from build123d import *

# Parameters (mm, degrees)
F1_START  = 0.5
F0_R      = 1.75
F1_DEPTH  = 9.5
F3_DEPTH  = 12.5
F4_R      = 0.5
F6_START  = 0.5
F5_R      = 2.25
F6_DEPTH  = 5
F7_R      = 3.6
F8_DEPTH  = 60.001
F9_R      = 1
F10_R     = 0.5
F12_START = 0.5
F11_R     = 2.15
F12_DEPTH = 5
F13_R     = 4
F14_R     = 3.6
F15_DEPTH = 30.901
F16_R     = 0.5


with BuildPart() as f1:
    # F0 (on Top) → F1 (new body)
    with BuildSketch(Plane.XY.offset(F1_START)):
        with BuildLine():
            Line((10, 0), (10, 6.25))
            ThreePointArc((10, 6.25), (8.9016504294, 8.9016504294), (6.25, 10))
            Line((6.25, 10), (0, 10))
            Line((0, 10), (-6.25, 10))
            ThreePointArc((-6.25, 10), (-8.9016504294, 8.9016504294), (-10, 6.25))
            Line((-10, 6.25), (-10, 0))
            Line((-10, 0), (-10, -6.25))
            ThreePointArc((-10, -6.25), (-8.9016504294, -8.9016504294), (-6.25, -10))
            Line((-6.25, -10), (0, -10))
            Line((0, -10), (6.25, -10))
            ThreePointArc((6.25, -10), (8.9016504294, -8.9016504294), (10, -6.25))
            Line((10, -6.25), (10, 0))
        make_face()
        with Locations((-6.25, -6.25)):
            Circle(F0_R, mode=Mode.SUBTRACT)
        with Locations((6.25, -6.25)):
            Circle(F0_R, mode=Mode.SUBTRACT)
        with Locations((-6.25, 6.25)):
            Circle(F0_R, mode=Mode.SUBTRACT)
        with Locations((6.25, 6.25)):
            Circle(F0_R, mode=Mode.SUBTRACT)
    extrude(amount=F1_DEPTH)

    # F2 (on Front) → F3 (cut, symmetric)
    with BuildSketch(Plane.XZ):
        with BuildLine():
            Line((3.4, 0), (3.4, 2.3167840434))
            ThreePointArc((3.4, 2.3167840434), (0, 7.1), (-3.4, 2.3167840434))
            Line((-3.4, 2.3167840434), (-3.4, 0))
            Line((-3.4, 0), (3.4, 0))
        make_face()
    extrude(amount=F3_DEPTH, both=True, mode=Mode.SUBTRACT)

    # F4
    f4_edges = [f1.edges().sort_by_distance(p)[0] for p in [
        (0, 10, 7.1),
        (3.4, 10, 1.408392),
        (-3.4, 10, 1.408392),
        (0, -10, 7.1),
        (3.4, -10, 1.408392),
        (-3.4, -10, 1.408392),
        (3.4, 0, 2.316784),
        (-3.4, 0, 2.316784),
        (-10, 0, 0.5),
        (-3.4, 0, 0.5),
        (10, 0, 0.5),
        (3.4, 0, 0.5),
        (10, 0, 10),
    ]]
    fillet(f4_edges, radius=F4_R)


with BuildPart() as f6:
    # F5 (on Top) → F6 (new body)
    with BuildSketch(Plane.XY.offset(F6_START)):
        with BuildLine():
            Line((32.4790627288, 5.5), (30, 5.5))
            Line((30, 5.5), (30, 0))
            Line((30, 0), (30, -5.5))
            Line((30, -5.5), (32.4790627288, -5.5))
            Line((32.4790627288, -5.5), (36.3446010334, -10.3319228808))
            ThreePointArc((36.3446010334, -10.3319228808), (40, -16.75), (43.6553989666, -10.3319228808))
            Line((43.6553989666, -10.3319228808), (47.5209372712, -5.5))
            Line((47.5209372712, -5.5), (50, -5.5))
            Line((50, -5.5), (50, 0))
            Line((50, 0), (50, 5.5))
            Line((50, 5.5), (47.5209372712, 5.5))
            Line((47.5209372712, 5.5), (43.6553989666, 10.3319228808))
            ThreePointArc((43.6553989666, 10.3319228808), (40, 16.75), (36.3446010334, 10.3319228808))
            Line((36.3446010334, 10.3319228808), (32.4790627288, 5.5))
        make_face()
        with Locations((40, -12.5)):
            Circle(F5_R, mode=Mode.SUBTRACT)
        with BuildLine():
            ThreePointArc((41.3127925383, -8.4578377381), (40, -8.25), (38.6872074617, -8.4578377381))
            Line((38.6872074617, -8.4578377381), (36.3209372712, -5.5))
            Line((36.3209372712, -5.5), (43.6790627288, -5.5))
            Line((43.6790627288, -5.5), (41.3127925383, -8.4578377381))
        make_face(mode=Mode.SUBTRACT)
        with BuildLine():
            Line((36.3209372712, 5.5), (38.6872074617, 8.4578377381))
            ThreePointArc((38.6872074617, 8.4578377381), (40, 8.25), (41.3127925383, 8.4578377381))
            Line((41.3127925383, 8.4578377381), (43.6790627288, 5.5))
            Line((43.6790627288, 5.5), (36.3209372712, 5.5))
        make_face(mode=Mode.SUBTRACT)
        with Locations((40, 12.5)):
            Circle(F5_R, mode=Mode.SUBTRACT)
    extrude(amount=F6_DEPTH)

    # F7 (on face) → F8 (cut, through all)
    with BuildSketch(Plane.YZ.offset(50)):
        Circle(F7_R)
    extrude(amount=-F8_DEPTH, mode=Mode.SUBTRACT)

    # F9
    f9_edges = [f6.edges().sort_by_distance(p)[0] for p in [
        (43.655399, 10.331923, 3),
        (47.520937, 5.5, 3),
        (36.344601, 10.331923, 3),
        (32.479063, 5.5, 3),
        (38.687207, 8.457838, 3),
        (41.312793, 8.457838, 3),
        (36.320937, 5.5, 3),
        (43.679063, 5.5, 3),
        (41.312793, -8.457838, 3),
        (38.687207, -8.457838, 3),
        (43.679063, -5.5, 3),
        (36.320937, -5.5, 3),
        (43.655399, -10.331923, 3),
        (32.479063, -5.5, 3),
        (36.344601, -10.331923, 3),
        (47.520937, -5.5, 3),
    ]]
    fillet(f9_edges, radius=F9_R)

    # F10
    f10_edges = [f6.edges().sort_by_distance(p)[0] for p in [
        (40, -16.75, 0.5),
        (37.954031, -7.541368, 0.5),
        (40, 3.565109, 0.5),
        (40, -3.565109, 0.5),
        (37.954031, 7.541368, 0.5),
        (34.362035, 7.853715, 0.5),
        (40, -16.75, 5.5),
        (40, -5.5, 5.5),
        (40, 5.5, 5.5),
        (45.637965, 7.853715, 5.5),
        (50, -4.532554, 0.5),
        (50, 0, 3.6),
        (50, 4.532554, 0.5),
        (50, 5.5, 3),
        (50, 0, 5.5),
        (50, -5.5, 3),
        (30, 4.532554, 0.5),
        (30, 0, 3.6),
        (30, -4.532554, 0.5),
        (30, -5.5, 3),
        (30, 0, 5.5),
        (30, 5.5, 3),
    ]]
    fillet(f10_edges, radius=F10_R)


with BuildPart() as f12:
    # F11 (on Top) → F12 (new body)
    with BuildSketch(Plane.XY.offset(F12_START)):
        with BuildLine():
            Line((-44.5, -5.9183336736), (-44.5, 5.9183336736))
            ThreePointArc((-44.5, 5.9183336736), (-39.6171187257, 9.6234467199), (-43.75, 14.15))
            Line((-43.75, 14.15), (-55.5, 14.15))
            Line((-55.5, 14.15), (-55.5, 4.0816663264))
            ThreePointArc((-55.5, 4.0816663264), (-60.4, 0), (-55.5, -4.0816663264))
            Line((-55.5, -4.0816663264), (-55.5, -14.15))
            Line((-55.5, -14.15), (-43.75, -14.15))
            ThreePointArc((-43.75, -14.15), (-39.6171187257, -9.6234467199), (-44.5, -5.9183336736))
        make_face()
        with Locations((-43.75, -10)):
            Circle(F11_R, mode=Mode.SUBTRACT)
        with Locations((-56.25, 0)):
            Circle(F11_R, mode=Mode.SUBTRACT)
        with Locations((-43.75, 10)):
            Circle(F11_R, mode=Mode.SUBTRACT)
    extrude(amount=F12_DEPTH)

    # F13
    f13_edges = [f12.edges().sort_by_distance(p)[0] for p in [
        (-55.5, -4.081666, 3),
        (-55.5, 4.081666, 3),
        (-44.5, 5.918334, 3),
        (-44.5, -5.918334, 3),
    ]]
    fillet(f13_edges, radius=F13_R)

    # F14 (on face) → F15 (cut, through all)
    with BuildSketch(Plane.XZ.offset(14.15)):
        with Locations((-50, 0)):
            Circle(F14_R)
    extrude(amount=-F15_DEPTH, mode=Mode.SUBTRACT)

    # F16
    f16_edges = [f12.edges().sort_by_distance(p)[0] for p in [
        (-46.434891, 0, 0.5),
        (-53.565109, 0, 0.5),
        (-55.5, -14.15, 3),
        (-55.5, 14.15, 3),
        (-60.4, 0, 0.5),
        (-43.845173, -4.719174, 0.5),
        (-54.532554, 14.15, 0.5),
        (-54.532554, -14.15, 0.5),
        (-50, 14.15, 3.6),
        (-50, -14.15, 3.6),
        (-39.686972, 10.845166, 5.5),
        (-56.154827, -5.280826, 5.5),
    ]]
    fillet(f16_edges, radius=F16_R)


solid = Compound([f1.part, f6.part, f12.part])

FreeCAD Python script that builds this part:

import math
import FreeCAD as App
import Part
import Sketcher

V = App.Vector


def edges_at(feature, points):
    """Names of the edges that pass closest to the given points."""
    edges = feature.Shape.Edges
    near = lambda p: min(range(len(edges)), key=lambda i: edges[i].distToShape(Part.Vertex(*p))[0])
    return sorted({f"Edge{near(p) + 1}" for p in points})

doc = App.newDocument("Part")
body = doc.addObject("PartDesign::Body", "Body")

sketch1 = doc.addObject("Sketcher::SketchObject", "Sketch")
body.addObject(sketch1)
sketch1.AttachmentSupport = (doc.XY_Plane, [""])
sketch1.MapMode = "FlatFace"
sketch1.AttachmentOffset = App.Placement(V(0, 0, 0.5), App.Rotation())
sketch1.addGeometry(Part.ArcOfCircle(Part.Circle(V(6.25, 6.25, 0), V(0, 0, 1), 3.75), math.radians(0), math.radians(90)), False)
sketch1.addGeometry(Part.LineSegment(V(6.25, 10, 0), V(-6.25, 10, 0)), False)
sketch1.addGeometry(Part.ArcOfCircle(Part.Circle(V(-6.25, 6.25, 0), V(0, 0, 1), 3.75), math.radians(90), math.radians(180)), False)
sketch1.addGeometry(Part.LineSegment(V(-10, 6.25, 0), V(-10, -6.25, 0)), False)
sketch1.addGeometry(Part.ArcOfCircle(Part.Circle(V(-6.25, -6.25, 0), V(0, 0, 1), 3.75), math.radians(180), math.radians(270)), False)
sketch1.addGeometry(Part.LineSegment(V(-6.25, -10, 0), V(6.25, -10, 0)), False)
sketch1.addGeometry(Part.ArcOfCircle(Part.Circle(V(6.25, -6.25, 0), V(0, 0, 1), 3.75), math.radians(-90), math.radians(0)), False)
sketch1.addGeometry(Part.LineSegment(V(10, -6.25, 0), V(10, 6.25, 0)), False)
sketch1.addGeometry(Part.Circle(V(-6.25, -6.25, 0), V(0, 0, 1), 1.75), False)
sketch1.addGeometry(Part.Circle(V(6.25, -6.25, 0), V(0, 0, 1), 1.75), False)
sketch1.addGeometry(Part.Circle(V(-6.25, 6.25, 0), V(0, 0, 1), 1.75), False)
sketch1.addGeometry(Part.Circle(V(6.25, 6.25, 0), V(0, 0, 1), 1.75), False)
sketch1.addConstraint(Sketcher.Constraint("Tangent", 0, 2, 1, 1))
sketch1.addConstraint(Sketcher.Constraint("Tangent", 1, 2, 2, 1))
sketch1.addConstraint(Sketcher.Constraint("Tangent", 2, 2, 3, 1))
sketch1.addConstraint(Sketcher.Constraint("Tangent", 3, 2, 4, 1))
sketch1.addConstraint(Sketcher.Constraint("Tangent", 4, 2, 5, 1))
sketch1.addConstraint(Sketcher.Constraint("Tangent", 5, 2, 6, 1))
sketch1.addConstraint(Sketcher.Constraint("Tangent", 6, 2, 7, 1))
sketch1.addConstraint(Sketcher.Constraint("Tangent", 7, 2, 0, 1))
sketch1.addConstraint(Sketcher.Constraint("Horizontal", 1))
sketch1.addConstraint(Sketcher.Constraint("Vertical", 3))
sketch1.addConstraint(Sketcher.Constraint("Horizontal", 5))
sketch1.addConstraint(Sketcher.Constraint("Vertical", 7))
sketch1.addConstraint(Sketcher.Constraint("Coincident", 8, 3, 4, 3))
sketch1.addConstraint(Sketcher.Constraint("Coincident", 9, 3, 6, 3))
sketch1.addConstraint(Sketcher.Constraint("Coincident", 10, 3, 2, 3))
sketch1.addConstraint(Sketcher.Constraint("Coincident", 11, 3, 0, 3))
sketch1.addConstraint(Sketcher.Constraint("Equal", 0, 2))
sketch1.addConstraint(Sketcher.Constraint("Equal", 2, 4))
sketch1.addConstraint(Sketcher.Constraint("Equal", 4, 6))
sketch1.addConstraint(Sketcher.Constraint("Equal", 8, 9))
sketch1.addConstraint(Sketcher.Constraint("Equal", 9, 10))
sketch1.addConstraint(Sketcher.Constraint("Equal", 10, 11))
sketch1.addConstraint(Sketcher.Constraint("Symmetric", 0, 3, 4, 3, -1, 1))
sketch1.addConstraint(Sketcher.Constraint("Equal", 5, 3))
sketch1.addConstraint(Sketcher.Constraint("Diameter", 8, 3.5))
sketch1.addConstraint(Sketcher.Constraint("Radius", 0, 3.75))
sketch1.addConstraint(Sketcher.Constraint("DistanceX", 1, 2, 1, 1, 12.5))
pad1 = doc.addObject("PartDesign::Pad", "Pad")
body.addObject(pad1)
pad1.Profile = sketch1
pad1.Length = 9.5

sketch2 = doc.addObject("Sketcher::SketchObject", "Sketch001")
body.addObject(sketch2)
sketch2.AttachmentSupport = (doc.XZ_Plane, [""])
sketch2.MapMode = "FlatFace"
sketch2.addGeometry(Part.LineSegment(V(3.4, 0, 0), V(3.4, 2.316784, 0)), False)
sketch2.addGeometry(Part.ArcOfCircle(Part.Circle(V(0, 3.5, 0), V(0, 0, 1), 3.6), math.radians(-19.188136), math.radians(199.188136)), False)
sketch2.addGeometry(Part.LineSegment(V(-3.4, 2.316784, 0), V(-3.4, 0, 0)), False)
sketch2.addGeometry(Part.LineSegment(V(-3.4, 0, 0), V(3.4, 0, 0)), False)
sketch2.addConstraint(Sketcher.Constraint("Coincident", 0, 2, 1, 1))
sketch2.addConstraint(Sketcher.Constraint("Coincident", 1, 2, 2, 1))
sketch2.addConstraint(Sketcher.Constraint("Coincident", 2, 2, 3, 1))
sketch2.addConstraint(Sketcher.Constraint("Coincident", 3, 2, 0, 1))
sketch2.addConstraint(Sketcher.Constraint("Vertical", 0))
sketch2.addConstraint(Sketcher.Constraint("Vertical", 2))
sketch2.addConstraint(Sketcher.Constraint("Horizontal", 3))
sketch2.addConstraint(Sketcher.Constraint("Symmetric", 2, 2, 3, 2, -1, 1))
sketch2.addConstraint(Sketcher.Constraint("PointOnObject", 1, 3, -2))
sketch2.addConstraint(Sketcher.Constraint("Radius", 1, 3.6))
sketch2.addConstraint(Sketcher.Constraint("DistanceX", 3, 1, 3, 2, 6.8))
sketch2.addConstraint(Sketcher.Constraint("DistanceY", -1, 1, 1, 3, 3.5))
pocket1 = doc.addObject("PartDesign::Pocket", "Pocket")
body.addObject(pocket1)
pocket1.Profile = sketch2
pocket1.Length = 25
pocket1.Midplane = True
doc.recompute()

fillet = doc.addObject("PartDesign::Fillet", "Fillet")
body.addObject(fillet)
fillet.Base = (pocket1, edges_at(pocket1, [
    (0, 10, 7.1),
    (3.4, 10, 1.408),
    (-3.4, 10, 1.408),
    (0, -10, 7.1),
    (3.4, -10, 1.408),
    (-3.4, -10, 1.408),
    (3.4, 0, 2.317),
    (-3.4, 0, 2.317),
    (-10, 0, 0.5),
    (-3.4, 0, 0.5),
    (10, 0, 0.5),
    (3.4, 0, 0.5),
    (10, 0, 10),
]))
fillet.Radius = 0.5
body2 = doc.addObject("PartDesign::Body", "Body001")

sketch3 = doc.addObject("Sketcher::SketchObject", "Sketch002")
body2.addObject(sketch3)
sketch3.AttachmentSupport = (doc.getObject("XY_Plane001"), [""])
sketch3.MapMode = "FlatFace"
sketch3.AttachmentOffset = App.Placement(V(0, 0, 0.5), App.Rotation())
sketch3.addGeometry(Part.LineSegment(V(32.479063, 5.5, 0), V(30, 5.5, 0)), False)
sketch3.addGeometry(Part.LineSegment(V(30, 5.5, 0), V(30, -5.5, 0)), False)
sketch3.addGeometry(Part.LineSegment(V(30, -5.5, 0), V(32.479063, -5.5, 0)), False)
sketch3.addGeometry(Part.LineSegment(V(32.479063, -5.5, 0), V(36.344601, -10.331923, 0)), False)
sketch3.addGeometry(Part.ArcOfCircle(Part.Circle(V(40, -12.5, 0), V(0, 0, 1), 4.25), math.radians(149.327125), math.radians(390.672875)), False)
sketch3.addGeometry(Part.LineSegment(V(43.655399, -10.331923, 0), V(47.520937, -5.5, 0)), False)
sketch3.addGeometry(Part.LineSegment(V(47.520937, -5.5, 0), V(50, -5.5, 0)), False)
sketch3.addGeometry(Part.LineSegment(V(50, -5.5, 0), V(50, 5.5, 0)), False)
sketch3.addGeometry(Part.LineSegment(V(50, 5.5, 0), V(47.520937, 5.5, 0)), False)
sketch3.addGeometry(Part.LineSegment(V(47.520937, 5.5, 0), V(43.655399, 10.331923, 0)), False)
sketch3.addGeometry(Part.ArcOfCircle(Part.Circle(V(40, 12.5, 0), V(0, 0, 1), 4.25), math.radians(-30.672875), math.radians(210.672875)), False)
sketch3.addGeometry(Part.LineSegment(V(36.344601, 10.331923, 0), V(32.479063, 5.5, 0)), False)
sketch3.addGeometry(Part.Circle(V(40, -12.5, 0), V(0, 0, 1), 2.25), False)
sketch3.addGeometry(Part.LineSegment(V(43.679063, -5.5, 0), V(41.312793, -8.457838, 0)), False)
sketch3.addGeometry(Part.ArcOfCircle(Part.Circle(V(40, -12.5, 0), V(0, 0, 1), 4.25), math.radians(72.007508), math.radians(107.992492)), False)
sketch3.addGeometry(Part.LineSegment(V(38.687207, -8.457838, 0), V(36.320937, -5.5, 0)), False)
sketch3.addGeometry(Part.LineSegment(V(36.320937, -5.5, 0), V(43.679063, -5.5, 0)), False)
sketch3.addGeometry(Part.LineSegment(V(43.679063, 5.5, 0), V(36.320937, 5.5, 0)), False)
sketch3.addGeometry(Part.LineSegment(V(36.320937, 5.5, 0), V(38.687207, 8.457838, 0)), False)
sketch3.addGeometry(Part.ArcOfCircle(Part.Circle(V(40, 12.5, 0), V(0, 0, 1), 4.25), math.radians(-107.992492), math.radians(-72.007508)), False)
sketch3.addGeometry(Part.LineSegment(V(41.312793, 8.457838, 0), V(43.679063, 5.5, 0)), False)
sketch3.addGeometry(Part.Circle(V(40, 12.5, 0), V(0, 0, 1), 2.25), False)
sketch3.addConstraint(Sketcher.Constraint("Coincident", 0, 2, 1, 1))
sketch3.addConstraint(Sketcher.Constraint("Coincident", 1, 2, 2, 1))
sketch3.addConstraint(Sketcher.Constraint("Coincident", 2, 2, 3, 1))
sketch3.addConstraint(Sketcher.Constraint("Coincident", 3, 2, 4, 1))
sketch3.addConstraint(Sketcher.Constraint("Coincident", 4, 2, 5, 1))
sketch3.addConstraint(Sketcher.Constraint("Coincident", 5, 2, 6, 1))
sketch3.addConstraint(Sketcher.Constraint("Coincident", 6, 2, 7, 1))
sketch3.addConstraint(Sketcher.Constraint("Coincident", 7, 2, 8, 1))
sketch3.addConstraint(Sketcher.Constraint("Coincident", 8, 2, 9, 1))
sketch3.addConstraint(Sketcher.Constraint("Coincident", 9, 2, 10, 1))
sketch3.addConstraint(Sketcher.Constraint("Coincident", 10, 2, 11, 1))
sketch3.addConstraint(Sketcher.Constraint("Coincident", 11, 2, 0, 1))
sketch3.addConstraint(Sketcher.Constraint("Coincident", 13, 2, 14, 1))
sketch3.addConstraint(Sketcher.Constraint("Coincident", 14, 2, 15, 1))
sketch3.addConstraint(Sketcher.Constraint("Coincident", 15, 2, 16, 1))
sketch3.addConstraint(Sketcher.Constraint("Coincident", 16, 2, 13, 1))
sketch3.addConstraint(Sketcher.Constraint("Coincident", 17, 2, 18, 1))
sketch3.addConstraint(Sketcher.Constraint("Coincident", 18, 2, 19, 1))
sketch3.addConstraint(Sketcher.Constraint("Coincident", 19, 2, 20, 1))
sketch3.addConstraint(Sketcher.Constraint("Coincident", 20, 2, 17, 1))
sketch3.addConstraint(Sketcher.Constraint("Horizontal", 0))
sketch3.addConstraint(Sketcher.Constraint("Vertical", 1))
sketch3.addConstraint(Sketcher.Constraint("Horizontal", 2))
sketch3.addConstraint(Sketcher.Constraint("Horizontal", 6))
sketch3.addConstraint(Sketcher.Constraint("Vertical", 7))
sketch3.addConstraint(Sketcher.Constraint("Horizontal", 8))
sketch3.addConstraint(Sketcher.Constraint("Horizontal", 16))
sketch3.addConstraint(Sketcher.Constraint("Horizontal", 17))
sketch3.addConstraint(Sketcher.Constraint("Coincident", 12, 3, 4, 3))
sketch3.addConstraint(Sketcher.Constraint("Coincident", 14, 3, 4, 3))
sketch3.addConstraint(Sketcher.Constraint("Coincident", 19, 3, 10, 3))
sketch3.addConstraint(Sketcher.Constraint("Coincident", 21, 3, 10, 3))
sketch3.addConstraint(Sketcher.Constraint("Equal", 4, 10))
sketch3.addConstraint(Sketcher.Constraint("Equal", 10, 14))
sketch3.addConstraint(Sketcher.Constraint("Equal", 14, 19))
sketch3.addConstraint(Sketcher.Constraint("Equal", 12, 21))
sketch3.addConstraint(Sketcher.Constraint("Symmetric", 4, 3, 10, 3, -1))
sketch3.addConstraint(Sketcher.Constraint("Symmetric", 5, 2, 8, 2, -1))
sketch3.addConstraint(Sketcher.Constraint("Symmetric", 2, 2, 11, 2, -1))
sketch3.addConstraint(Sketcher.Constraint("Symmetric", 15, 2, 17, 2, -1))
sketch3.addConstraint(Sketcher.Constraint("Parallel", 3, 9))
sketch3.addConstraint(Sketcher.Constraint("Parallel", 5, 11))
sketch3.addConstraint(Sketcher.Constraint("Parallel", 11, 13))
sketch3.addConstraint(Sketcher.Constraint("Parallel", 9, 15))
sketch3.addConstraint(Sketcher.Constraint("Parallel", 13, 18))
sketch3.addConstraint(Sketcher.Constraint("Parallel", 15, 20))
sketch3.addConstraint(Sketcher.Constraint("Horizontal", 3, 2, 4, 2))
sketch3.addConstraint(Sketcher.Constraint("Horizontal", 2, 2, 5, 2))
sketch3.addConstraint(Sketcher.Constraint("Horizontal", 9, 2, 10, 2))
sketch3.addConstraint(Sketcher.Constraint("Horizontal", 13, 2, 14, 2))
sketch3.addConstraint(Sketcher.Constraint("Horizontal", 6, 2, 15, 2))
sketch3.addConstraint(Sketcher.Constraint("Horizontal", 18, 2, 19, 2))
sketch3.addConstraint(Sketcher.Constraint("Equal", 2, 6))
sketch3.addConstraint(Sketcher.Constraint("Diameter", 12, 4.5))
sketch3.addConstraint(Sketcher.Constraint("DistanceY", 1, 2, 1, 1, 11.0))
sketch3.addConstraint(Sketcher.Constraint("Radius", 4, 4.25))
sketch3.addConstraint(Sketcher.Constraint("DistanceX", -1, 1, 4, 3, 40.0))
sketch3.addConstraint(Sketcher.Constraint("DistanceX", -1, 1, 0, 2, 30.0))
sketch3.addConstraint(Sketcher.Constraint("DistanceY", 4, 3, 10, 3, 25.0))
sketch3.addConstraint(Sketcher.Constraint("DistanceX", -1, 1, 3, 2, 36.344601))
sketch3.addConstraint(Sketcher.Constraint("Distance", 3, 6.187881))
sketch3.addConstraint(Sketcher.Constraint("Distance", 13, 3.787881))
pad2 = doc.addObject("PartDesign::Pad", "Pad001")
body2.addObject(pad2)
pad2.Profile = sketch3
pad2.Length = 5

sketch4 = doc.addObject("Sketcher::SketchObject", "Sketch003")
body2.addObject(sketch4)
sketch4.AttachmentSupport = (doc.getObject("YZ_Plane001"), [""])
sketch4.MapMode = "FlatFace"
sketch4.AttachmentOffset = App.Placement(V(0, 0, 50), App.Rotation())
sketch4.addGeometry(Part.Circle(V(0, 0, 0), V(0, 0, 1), 3.6), False)
sketch4.addConstraint(Sketcher.Constraint("Coincident", 0, 3, -1, 1))
sketch4.addConstraint(Sketcher.Constraint("Diameter", 0, 7.2))
pocket2 = doc.addObject("PartDesign::Pocket", "Pocket001")
body2.addObject(pocket2)
pocket2.Profile = sketch4
pocket2.Type = "ThroughAll"
doc.recompute()

fillet2 = doc.addObject("PartDesign::Fillet", "Fillet001")
body2.addObject(fillet2)
fillet2.Base = (pocket2, edges_at(pocket2, [
    (43.655, 10.332, 3),
    (47.521, 5.5, 3),
    (36.345, 10.332, 3),
    (32.479, 5.5, 3),
    (38.687, 8.458, 3),
    (41.313, 8.458, 3),
    (36.321, 5.5, 3),
    (43.679, 5.5, 3),
    (41.313, -8.458, 3),
    (38.687, -8.458, 3),
    (43.679, -5.5, 3),
    (36.321, -5.5, 3),
    (43.655, -10.332, 3),
    (32.479, -5.5, 3),
    (36.345, -10.332, 3),
    (47.521, -5.5, 3),
]))
fillet2.Radius = 1
doc.recompute()

fillet3 = doc.addObject("PartDesign::Fillet", "Fillet002")
body2.addObject(fillet3)
fillet3.Base = (fillet2, edges_at(fillet2, [
    (40, -16.75, 0.5),
    (37.954, -7.541, 0.5),
    (40, 3.565, 0.5),
    (40, -3.565, 0.5),
    (37.954, 7.541, 0.5),
    (34.362, 7.854, 0.5),
    (40, -16.75, 5.5),
    (40, -5.5, 5.5),
    (40, 5.5, 5.5),
    (45.638, 7.854, 5.5),
    (50, -4.533, 0.5),
    (50, 0, 3.6),
    (50, 4.533, 0.5),
    (50, 5.5, 3),
    (50, 0, 5.5),
    (50, -5.5, 3),
    (30, 4.533, 0.5),
    (30, 0, 3.6),
    (30, -4.533, 0.5),
    (30, -5.5, 3),
    (30, 0, 5.5),
    (30, 5.5, 3),
]))
fillet3.Radius = 0.5
body3 = doc.addObject("PartDesign::Body", "Body002")

sketch5 = doc.addObject("Sketcher::SketchObject", "Sketch004")
body3.addObject(sketch5)
sketch5.AttachmentSupport = (doc.getObject("XY_Plane002"), [""])
sketch5.MapMode = "FlatFace"
sketch5.AttachmentOffset = App.Placement(V(0, 0, 0.5), App.Rotation())
sketch5.addGeometry(Part.LineSegment(V(-44.5, -5.918334, 0), V(-44.5, 5.918334, 0)), False)
sketch5.addGeometry(Part.ArcOfCircle(Part.Circle(V(-43.75, 10, 0), V(0, 0, 1), 4.15), math.radians(-100.411869), math.radians(90)), False)
sketch5.addGeometry(Part.LineSegment(V(-43.75, 14.15, 0), V(-55.5, 14.15, 0)), False)
sketch5.addGeometry(Part.LineSegment(V(-55.5, 14.15, 0), V(-55.5, 4.081666, 0)), False)
sketch5.addGeometry(Part.ArcOfCircle(Part.Circle(V(-56.25, 0, 0), V(0, 0, 1), 4.15), math.radians(79.588131), math.radians(280.411869)), False)
sketch5.addGeometry(Part.LineSegment(V(-55.5, -4.081666, 0), V(-55.5, -14.15, 0)), False)
sketch5.addGeometry(Part.LineSegment(V(-55.5, -14.15, 0), V(-43.75, -14.15, 0)), False)
sketch5.addGeometry(Part.ArcOfCircle(Part.Circle(V(-43.75, -10, 0), V(0, 0, 1), 4.15), math.radians(-90), math.radians(100.411869)), False)
sketch5.addGeometry(Part.Circle(V(-43.75, -10, 0), V(0, 0, 1), 2.15), False)
sketch5.addGeometry(Part.Circle(V(-56.25, 0, 0), V(0, 0, 1), 2.15), False)
sketch5.addGeometry(Part.Circle(V(-43.75, 10, 0), V(0, 0, 1), 2.15), False)
sketch5.addConstraint(Sketcher.Constraint("Coincident", 0, 2, 1, 1))
sketch5.addConstraint(Sketcher.Constraint("Tangent", 1, 2, 2, 1))
sketch5.addConstraint(Sketcher.Constraint("Coincident", 2, 2, 3, 1))
sketch5.addConstraint(Sketcher.Constraint("Coincident", 3, 2, 4, 1))
sketch5.addConstraint(Sketcher.Constraint("Coincident", 4, 2, 5, 1))
sketch5.addConstraint(Sketcher.Constraint("Coincident", 5, 2, 6, 1))
sketch5.addConstraint(Sketcher.Constraint("Tangent", 6, 2, 7, 1))
sketch5.addConstraint(Sketcher.Constraint("Coincident", 7, 2, 0, 1))
sketch5.addConstraint(Sketcher.Constraint("Vertical", 0))
sketch5.addConstraint(Sketcher.Constraint("Horizontal", 2))
sketch5.addConstraint(Sketcher.Constraint("Vertical", 3))
sketch5.addConstraint(Sketcher.Constraint("Vertical", 5))
sketch5.addConstraint(Sketcher.Constraint("Horizontal", 6))
sketch5.addConstraint(Sketcher.Constraint("Coincident", 8, 3, 7, 3))
sketch5.addConstraint(Sketcher.Constraint("Coincident", 9, 3, 4, 3))
sketch5.addConstraint(Sketcher.Constraint("Coincident", 10, 3, 1, 3))
sketch5.addConstraint(Sketcher.Constraint("Equal", 1, 4))
sketch5.addConstraint(Sketcher.Constraint("Equal", 4, 7))
sketch5.addConstraint(Sketcher.Constraint("Equal", 8, 9))
sketch5.addConstraint(Sketcher.Constraint("Equal", 9, 10))
sketch5.addConstraint(Sketcher.Constraint("Symmetric", 1, 3, 7, 3, -1))
sketch5.addConstraint(Sketcher.Constraint("Symmetric", 3, 2, 4, 2, -1))
sketch5.addConstraint(Sketcher.Constraint("Diameter", 8, 4.3))
sketch5.addConstraint(Sketcher.Constraint("Radius", 1, 4.15))
sketch5.addConstraint(Sketcher.Constraint("DistanceY", -1, 1, 1, 3, 10.0))
sketch5.addConstraint(Sketcher.Constraint("DistanceX", 2, 2, 0, 2, 11.0))
sketch5.addConstraint(Sketcher.Constraint("DistanceX", 2, 2, 2, 1, 11.75))
sketch5.addConstraint(Sketcher.Constraint("DistanceX", 0, 2, -1, 1, 44.5))
sketch5.addConstraint(Sketcher.Constraint("DistanceX", 4, 3, 1, 3, 12.5))
pad3 = doc.addObject("PartDesign::Pad", "Pad002")
body3.addObject(pad3)
pad3.Profile = sketch5
pad3.Length = 5
doc.recompute()

fillet4 = doc.addObject("PartDesign::Fillet", "Fillet003")
body3.addObject(fillet4)
fillet4.Base = (pad3, edges_at(pad3, [
    (-55.5, -4.082, 3),
    (-55.5, 4.082, 3),
    (-44.5, 5.918, 3),
    (-44.5, -5.918, 3),
]))
fillet4.Radius = 4

sketch6 = doc.addObject("Sketcher::SketchObject", "Sketch005")
body3.addObject(sketch6)
sketch6.AttachmentSupport = (doc.getObject("XZ_Plane002"), [""])
sketch6.MapMode = "FlatFace"
sketch6.AttachmentOffset = App.Placement(V(0, 0, 14.15), App.Rotation())
sketch6.addGeometry(Part.Circle(V(-50, 0, 0), V(0, 0, 1), 3.6), False)
sketch6.addConstraint(Sketcher.Constraint("PointOnObject", 0, 3, -1))
sketch6.addConstraint(Sketcher.Constraint("Diameter", 0, 7.2))
sketch6.addConstraint(Sketcher.Constraint("DistanceX", 0, 3, -1, 1, 50.0))
pocket3 = doc.addObject("PartDesign::Pocket", "Pocket002")
body3.addObject(pocket3)
pocket3.Profile = sketch6
pocket3.Type = "ThroughAll"
doc.recompute()

fillet5 = doc.addObject("PartDesign::Fillet", "Fillet004")
body3.addObject(fillet5)
fillet5.Base = (pocket3, edges_at(pocket3, [
    (-46.435, 0, 0.5),
    (-53.565, 0, 0.5),
    (-55.5, -14.15, 3),
    (-55.5, 14.15, 3),
    (-60.4, 0, 0.5),
    (-43.845, -4.719, 0.5),
    (-54.533, 14.15, 0.5),
    (-54.533, -14.15, 0.5),
    (-50, 14.15, 3.6),
    (-50, -14.15, 3.6),
    (-39.687, 10.845, 5.5),
    (-56.155, -5.281, 5.5),
]))
fillet5.Radius = 0.5

doc.recompute()
